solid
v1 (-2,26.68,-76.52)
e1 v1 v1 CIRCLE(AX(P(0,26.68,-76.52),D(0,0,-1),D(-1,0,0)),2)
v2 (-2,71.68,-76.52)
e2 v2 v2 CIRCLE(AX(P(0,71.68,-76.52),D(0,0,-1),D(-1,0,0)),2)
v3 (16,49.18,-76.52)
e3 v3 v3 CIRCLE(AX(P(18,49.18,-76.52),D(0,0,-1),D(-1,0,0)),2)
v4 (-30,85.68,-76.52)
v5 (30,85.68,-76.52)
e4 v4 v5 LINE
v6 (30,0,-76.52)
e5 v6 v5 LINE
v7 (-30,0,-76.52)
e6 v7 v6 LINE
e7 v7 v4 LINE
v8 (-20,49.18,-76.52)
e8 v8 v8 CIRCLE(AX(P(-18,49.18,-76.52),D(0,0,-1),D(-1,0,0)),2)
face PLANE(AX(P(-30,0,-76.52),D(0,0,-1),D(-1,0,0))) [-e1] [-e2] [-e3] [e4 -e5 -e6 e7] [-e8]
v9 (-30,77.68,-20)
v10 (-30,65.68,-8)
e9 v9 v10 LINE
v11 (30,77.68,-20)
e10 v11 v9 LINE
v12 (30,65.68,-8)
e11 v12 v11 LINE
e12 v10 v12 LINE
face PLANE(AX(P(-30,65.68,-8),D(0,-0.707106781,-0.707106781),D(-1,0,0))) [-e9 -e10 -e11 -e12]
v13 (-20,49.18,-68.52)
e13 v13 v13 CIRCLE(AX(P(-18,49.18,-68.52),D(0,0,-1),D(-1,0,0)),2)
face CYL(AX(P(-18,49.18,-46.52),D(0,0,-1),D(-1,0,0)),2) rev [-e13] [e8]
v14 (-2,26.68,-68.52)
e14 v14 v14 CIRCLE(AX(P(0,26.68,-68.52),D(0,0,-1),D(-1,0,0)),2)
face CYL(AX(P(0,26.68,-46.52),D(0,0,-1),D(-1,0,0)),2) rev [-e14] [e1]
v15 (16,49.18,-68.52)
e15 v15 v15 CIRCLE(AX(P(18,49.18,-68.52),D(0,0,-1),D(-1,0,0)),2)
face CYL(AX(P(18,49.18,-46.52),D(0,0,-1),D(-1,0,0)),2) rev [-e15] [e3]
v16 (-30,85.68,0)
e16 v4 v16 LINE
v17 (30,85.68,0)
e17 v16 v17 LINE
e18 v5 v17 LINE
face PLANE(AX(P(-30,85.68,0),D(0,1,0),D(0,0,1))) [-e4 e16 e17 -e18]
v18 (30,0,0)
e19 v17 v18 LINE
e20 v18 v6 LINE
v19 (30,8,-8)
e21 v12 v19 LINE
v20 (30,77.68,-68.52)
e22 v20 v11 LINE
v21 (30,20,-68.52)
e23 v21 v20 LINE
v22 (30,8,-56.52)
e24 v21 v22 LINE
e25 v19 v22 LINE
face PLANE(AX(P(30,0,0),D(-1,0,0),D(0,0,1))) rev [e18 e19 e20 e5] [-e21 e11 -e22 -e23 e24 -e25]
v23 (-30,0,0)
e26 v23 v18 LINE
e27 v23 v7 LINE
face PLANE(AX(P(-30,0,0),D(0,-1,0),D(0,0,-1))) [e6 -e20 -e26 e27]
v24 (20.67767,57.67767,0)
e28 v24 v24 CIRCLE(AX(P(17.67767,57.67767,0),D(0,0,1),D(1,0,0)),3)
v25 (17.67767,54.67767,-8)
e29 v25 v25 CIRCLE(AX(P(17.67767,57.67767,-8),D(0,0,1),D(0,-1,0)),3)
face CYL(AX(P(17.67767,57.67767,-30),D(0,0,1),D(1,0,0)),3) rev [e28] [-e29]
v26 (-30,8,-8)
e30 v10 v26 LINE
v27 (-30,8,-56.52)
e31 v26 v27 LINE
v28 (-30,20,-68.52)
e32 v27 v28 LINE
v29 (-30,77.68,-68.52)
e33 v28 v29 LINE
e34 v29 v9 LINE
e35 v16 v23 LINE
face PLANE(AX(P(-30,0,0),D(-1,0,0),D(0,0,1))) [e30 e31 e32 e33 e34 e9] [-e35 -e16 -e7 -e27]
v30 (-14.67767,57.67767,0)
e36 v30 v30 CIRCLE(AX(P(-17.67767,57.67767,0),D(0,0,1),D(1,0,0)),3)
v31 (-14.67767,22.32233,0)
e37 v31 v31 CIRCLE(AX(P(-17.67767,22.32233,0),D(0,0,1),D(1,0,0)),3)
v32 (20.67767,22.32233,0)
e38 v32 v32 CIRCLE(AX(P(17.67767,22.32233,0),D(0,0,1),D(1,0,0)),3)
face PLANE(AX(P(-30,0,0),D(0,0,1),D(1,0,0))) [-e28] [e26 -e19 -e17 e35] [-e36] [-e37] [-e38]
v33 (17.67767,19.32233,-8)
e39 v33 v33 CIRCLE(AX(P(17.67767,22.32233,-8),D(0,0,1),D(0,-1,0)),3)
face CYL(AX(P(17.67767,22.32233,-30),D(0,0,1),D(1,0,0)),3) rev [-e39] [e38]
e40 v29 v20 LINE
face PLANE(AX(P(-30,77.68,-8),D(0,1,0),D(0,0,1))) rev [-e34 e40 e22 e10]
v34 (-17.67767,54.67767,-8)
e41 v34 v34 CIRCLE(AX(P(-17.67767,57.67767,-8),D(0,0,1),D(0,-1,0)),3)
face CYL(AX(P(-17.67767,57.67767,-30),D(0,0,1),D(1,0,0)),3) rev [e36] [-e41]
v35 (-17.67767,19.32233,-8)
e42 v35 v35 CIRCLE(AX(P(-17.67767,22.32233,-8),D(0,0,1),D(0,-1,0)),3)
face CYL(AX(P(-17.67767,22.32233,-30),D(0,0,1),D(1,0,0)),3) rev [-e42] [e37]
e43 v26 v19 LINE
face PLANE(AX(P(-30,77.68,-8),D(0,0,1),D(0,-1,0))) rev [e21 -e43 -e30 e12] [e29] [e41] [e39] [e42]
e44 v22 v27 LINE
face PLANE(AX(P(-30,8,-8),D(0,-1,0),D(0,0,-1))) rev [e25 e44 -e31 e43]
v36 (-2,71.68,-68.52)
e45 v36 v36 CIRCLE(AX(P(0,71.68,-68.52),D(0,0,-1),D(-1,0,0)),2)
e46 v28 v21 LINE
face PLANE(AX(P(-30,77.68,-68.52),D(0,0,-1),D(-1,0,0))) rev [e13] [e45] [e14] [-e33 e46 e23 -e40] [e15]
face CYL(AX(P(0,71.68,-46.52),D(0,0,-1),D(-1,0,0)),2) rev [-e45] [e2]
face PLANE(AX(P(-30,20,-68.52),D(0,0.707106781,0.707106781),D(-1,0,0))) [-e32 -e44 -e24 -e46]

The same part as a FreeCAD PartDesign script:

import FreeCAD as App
import Part
import Sketcher

V = App.Vector


def edges_at(feature, points):
    """Names of the edges that pass closest to the given points."""
    edges = feature.Shape.Edges
    near = lambda p: min(range(len(edges)), key=lambda i: edges[i].distToShape(Part.Vertex(*p))[0])
    return sorted({f"Edge{near(p) + 1}" for p in points})

doc = App.newDocument("Part")
params = doc.addObject("Spreadsheet::Sheet", "Params")
for row, (alias, value) in enumerate([
    ("sketch1_width", "85.68 mm"),
    ("sketch1_height", "76.52 mm"),
    ("pad1_length", "30 mm"),
    ("pad1_length2", "30 mm"),
    ("sketch2_diameter", "4 mm"),
    ("pocket1_length", "30 mm"),
    ("sketch3_diameter", "6 mm"),
    ("pocket2_length", "30 mm"),
    ("chamfer_size", "12 mm"),
], start=1):
    params.set(f"A{row}", alias)
    params.set(f"B{row}", "=" + value)
    params.setAlias(f"B{row}", alias)

body = doc.addObject("PartDesign::Body", "Body")

sketch1 = doc.addObject("Sketcher::SketchObject", "Sketch")
body.addObject(sketch1)
sketch1.AttachmentSupport = (doc.YZ_Plane, [""])
sketch1.MapMode = "FlatFace"
sketch1.addGeometry([
    Part.LineSegment(V(86, 0, 0), V(0, 0, 0)),
    Part.LineSegment(V(0, 0, 0), V(0, -77, 0)),
    Part.LineSegment(V(0, -77, 0), V(86, -77, 0)),
    Part.LineSegment(V(86, -77, 0), V(86, 0, 0)),
    Part.LineSegment(V(8, -69, 0), V(8, -8, 0)),
    Part.LineSegment(V(8, -8, 0), V(78, -8, 0)),
    Part.LineSegment(V(78, -8, 0), V(78, -69, 0)),
    Part.LineSegment(V(78, -69, 0), V(8, -69, 0)),
], False)
sketch1.addConstraint([
    Sketcher.Constraint("Coincident", 0, 2, 1, 1),
    Sketcher.Constraint("Coincident", 1, 2, 2, 1),
    Sketcher.Constraint("Coincident", 2, 2, 3, 1),
    Sketcher.Constraint("Coincident", 3, 2, 0, 1),
    Sketcher.Constraint("Coincident", 4, 2, 5, 1),
    Sketcher.Constraint("Coincident", 5, 2, 6, 1),
    Sketcher.Constraint("Coincident", 6, 2, 7, 1),
    Sketcher.Constraint("Coincident", 7, 2, 4, 1),
    Sketcher.Constraint("Horizontal", 0),
    Sketcher.Constraint("Vertical", 1),
    Sketcher.Constraint("Horizontal", 2),
    Sketcher.Constraint("Vertical", 3),
    Sketcher.Constraint("Vertical", 4),
    Sketcher.Constraint("Horizontal", 5),
    Sketcher.Constraint("Vertical", 6),
    Sketcher.Constraint("Horizontal", 7),
    Sketcher.Constraint("Coincident", 0, 2, -1, 1),
    Sketcher.Constraint("DistanceX", -1, 1, 4, 2, 8.0),
    Sketcher.Constraint("DistanceY", 4, 2, -1, 1, 8.0),
    Sketcher.Constraint("DistanceX", 5, 2, 3, 2, 8.0),
    Sketcher.Constraint("DistanceY", 2, 2, 6, 2, 8.0),
    Sketcher.Constraint("DistanceX", 0, 2, 0, 1, 85.68),
    Sketcher.Constraint("DistanceY", 1, 2, 1, 1, 76.52),
])
sketch1.setExpression("Constraints[21]", "Params.sketch1_width")
sketch1.setExpression("Constraints[22]", "Params.sketch1_height")
pad1 = doc.addObject("PartDesign::Pad", "Pad")
body.addObject(pad1)
pad1.Profile = sketch1
pad1.Type = "TwoLengths"
pad1.setExpression("Length", "Params.pad1_length")
pad1.setExpression("Length2", "Params.pad1_length2")

sketch2 = doc.addObject("Sketcher::SketchObject", "Sketch001")
body.addObject(sketch2)
sketch2.AttachmentSupport = (doc.XY_Plane, [""])
sketch2.MapMode = "FlatFace"
sketch2.AttachmentOffset = App.Placement(V(0, 0, -76.52), App.Rotation())
sketch2.addGeometry([
    Part.Circle(V(0, 71.7, 0), V(0, 0, 1), 2),
    Part.Circle(V(-18, 49.2, 0), V(0, 0, 1), 2),
    Part.Circle(V(18, 49.2, 0), V(0, 0, 1), 2),
    Part.Circle(V(0, 26.7, 0), V(0, 0, 1), 2),
], False)
sketch2.addConstraint([
    Sketcher.Constraint("Equal", 0, 1),
    Sketcher.Constraint("Equal", 1, 2),
    Sketcher.Constraint("Equal", 2, 3),
    Sketcher.Constraint("Symmetric", 1, 3, 2, 3, -2),
    Sketcher.Constraint("PointOnObject", 0, 3, -2),
    Sketcher.Constraint("PointOnObject", 3, 3, -2),
    Sketcher.Constraint("Diameter", 0, 4.0),
    Sketcher.Constraint("DistanceX", 1, 3, -1, 1, 18.0),
    Sketcher.Constraint("DistanceY", 3, 3, 0, 3, 45.0),
    Sketcher.Constraint("DistanceY", 1, 3, 0, 3, 22.5),
    Sketcher.Constraint("DistanceY", -1, 1, 0, 3, 71.68),
])
sketch2.setExpression("Constraints[6]", "Params.sketch2_diameter")
pocket1 = doc.addObject("PartDesign::Pocket", "Pocket")
body.addObject(pocket1)
pocket1.Profile = sketch2
pocket1.setExpression("Length", "Params.pocket1_length")
pocket1.Reversed = True

sketch3 = doc.addObject("Sketcher::SketchObject", "Sketch002")
body.addObject(sketch3)
sketch3.AttachmentSupport = (doc.XY_Plane, [""])
sketch3.MapMode = "FlatFace"
sketch3.addGeometry([
    Part.Circle(V(17.7, 22.3, 0), V(0, 0, 1), 3),
    Part.Circle(V(-17.7, 22.3, 0), V(0, 0, 1), 3),
    Part.Circle(V(-17.7, 57.7, 0), V(0, 0, 1), 3),
    Part.Circle(V(17.7, 57.7, 0), V(0, 0, 1), 3),
], False)
sketch3.addConstraint([
    Sketcher.Constraint("Equal", 0, 1),
    Sketcher.Constraint("Equal", 1, 2),
    Sketcher.Constraint("Equal", 2, 3),
    Sketcher.Constraint("Symmetric", 0, 3, 1, 3, -2),
    Sketcher.Constraint("Symmetric", 2, 3, 3, 3, -2),
    Sketcher.Constraint("Vertical", 1, 3, 2, 3),
    Sketcher.Constraint("Diameter", 0, 6.0),
    Sketcher.Constraint("DistanceX", -1, 1, 0, 3, 17.67767),
    Sketcher.Constraint("DistanceY", -1, 1, 0, 3, 22.32233),
    Sketcher.Constraint("DistanceY", -1, 1, 2, 3, 57.67767),
])
sketch3.setExpression("Constraints[6]", "Params.sketch3_diameter")
pocket2 = doc.addObject("PartDesign::Pocket", "Pocket001")
body.addObject(pocket2)
pocket2.Profile = sketch3
pocket2.setExpression("Length", "Params.pocket2_length")
doc.recompute()

chamfer = doc.addObject("PartDesign::Chamfer", "Chamfer")
body.addObject(chamfer)
chamfer.Base = (pocket2, edges_at(pocket2, [(0, 77.68, -8), (0, 8, -68.52)]))
chamfer.setExpression("Size", "Params.chamfer_size")

doc.recompute()
